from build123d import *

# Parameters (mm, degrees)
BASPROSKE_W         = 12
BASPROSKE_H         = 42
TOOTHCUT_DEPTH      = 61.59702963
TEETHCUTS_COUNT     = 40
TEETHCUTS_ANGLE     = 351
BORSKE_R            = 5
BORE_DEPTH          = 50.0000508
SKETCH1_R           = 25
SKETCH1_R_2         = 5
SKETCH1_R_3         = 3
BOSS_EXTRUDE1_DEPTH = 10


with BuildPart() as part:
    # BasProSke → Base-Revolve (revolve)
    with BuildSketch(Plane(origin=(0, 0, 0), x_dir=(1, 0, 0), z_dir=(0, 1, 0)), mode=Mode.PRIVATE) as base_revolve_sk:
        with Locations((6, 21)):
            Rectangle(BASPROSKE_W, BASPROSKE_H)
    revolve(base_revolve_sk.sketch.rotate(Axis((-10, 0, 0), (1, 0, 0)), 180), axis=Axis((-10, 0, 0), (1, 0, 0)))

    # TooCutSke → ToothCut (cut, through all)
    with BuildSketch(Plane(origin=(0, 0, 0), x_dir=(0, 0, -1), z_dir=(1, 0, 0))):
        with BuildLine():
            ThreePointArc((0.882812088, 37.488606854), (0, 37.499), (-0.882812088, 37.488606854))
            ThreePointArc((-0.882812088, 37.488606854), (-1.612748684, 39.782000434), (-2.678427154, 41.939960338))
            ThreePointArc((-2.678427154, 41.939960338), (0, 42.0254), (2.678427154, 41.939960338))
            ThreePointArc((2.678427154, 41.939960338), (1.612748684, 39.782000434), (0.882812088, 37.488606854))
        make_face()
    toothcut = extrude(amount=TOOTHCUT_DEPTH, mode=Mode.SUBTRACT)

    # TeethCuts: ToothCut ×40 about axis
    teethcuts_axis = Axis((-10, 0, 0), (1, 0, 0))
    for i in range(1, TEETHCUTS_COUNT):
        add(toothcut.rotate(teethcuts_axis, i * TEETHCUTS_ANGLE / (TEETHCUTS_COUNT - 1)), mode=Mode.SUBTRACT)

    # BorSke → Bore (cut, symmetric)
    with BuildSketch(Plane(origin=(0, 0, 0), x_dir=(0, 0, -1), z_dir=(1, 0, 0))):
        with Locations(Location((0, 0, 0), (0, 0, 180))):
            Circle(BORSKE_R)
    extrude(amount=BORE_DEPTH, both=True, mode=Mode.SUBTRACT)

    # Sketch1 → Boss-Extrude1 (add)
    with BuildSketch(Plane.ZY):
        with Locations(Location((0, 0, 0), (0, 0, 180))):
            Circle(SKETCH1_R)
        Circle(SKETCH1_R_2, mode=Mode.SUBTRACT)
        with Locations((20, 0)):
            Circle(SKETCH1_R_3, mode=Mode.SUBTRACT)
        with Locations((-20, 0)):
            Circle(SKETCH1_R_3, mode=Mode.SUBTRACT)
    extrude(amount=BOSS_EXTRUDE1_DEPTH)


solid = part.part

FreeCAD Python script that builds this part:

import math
import FreeCAD as App
import Part
import Sketcher
from FreeCAD import Vector

doc = App.newDocument("Part")
body = doc.addObject("PartDesign::Body", "Body")

# Sketch on XZ plane
sketch1 = doc.addObject("Sketcher::SketchObject", "Sketch")
body.addObject(sketch1)
sketch1.AttachmentSupport = (doc.XZ_Plane, [""])
sketch1.MapMode = "FlatFace"
sketch1.addGeometry([
    Part.LineSegment(Vector(0, -42, 0), Vector(0, 0, 0)),
    Part.LineSegment(Vector(0, 0, 0), Vector(12, 0, 0)),
    Part.LineSegment(Vector(12, 0, 0), Vector(12, -42, 0)),
    Part.LineSegment(Vector(12, -42, 0), Vector(0, -42, 0)),
], False)
sketch1.addConstraint([
    Sketcher.Constraint("Coincident", 0, 2, 1, 1),
    Sketcher.Constraint("Coincident", 1, 2, 2, 1),
    Sketcher.Constraint("Coincident", 2, 2, 3, 1),
    Sketcher.Constraint("Coincident", 3, 2, 0, 1),
    Sketcher.Constraint("Vertical", 0),
    Sketcher.Constraint("Horizontal", 1),
    Sketcher.Constraint("Vertical", 2),
    Sketcher.Constraint("Horizontal", 3),
    Sketcher.Constraint("Coincident", 0, 2, -1, 1),
    Sketcher.Constraint("DistanceX", 1, 1, 1, 2, 12.0),
    Sketcher.Constraint("DistanceY", 0, 1, 0, 2, 42.0),
])
revolution = doc.addObject("PartDesign::Revolution", "Revolution")
body.addObject(revolution)
revolution.Profile = sketch1
revolution.ReferenceAxis = (sketch1, ["H_Axis"])
revolution.Angle = 360

# Sketch on YZ plane
sketch2 = doc.addObject("Sketcher::SketchObject", "Sketch001")
body.addObject(sketch2)
sketch2.AttachmentSupport = (doc.YZ_Plane, [""])
sketch2.MapMode = "FlatFace"
sketch2.addGeometry([
    Part.ArcOfCircle(Part.Circle(Vector(0, 0, 0), Vector(0, 0, 1), 37.5), math.radians(-1.35), math.radians(1.35)),
    Part.ArcOfCircle(Part.Circle(Vector(33.8, -16.5, 0), Vector(0, 0, 1), 16), math.radians(59.4), math.radians(76.66)),
    Part.ArcOfCircle(Part.Circle(Vector(0, 0, 0), Vector(0, 0, 1), 42), math.radians(-3.65), math.radians(3.65)),
    Part.ArcOfCircle(Part.Circle(Vector(33.8, 16.5, 0), Vector(0, 0, 1), 16), math.radians(-76.66), math.radians(-59.4)),
], False)
sketch2.addConstraint([
    Sketcher.Constraint("Coincident", 0, 1, 1, 2),
    Sketcher.Constraint("Coincident", 1, 1, 2, 1),
    Sketcher.Constraint("Coincident", 2, 2, 3, 2),
    Sketcher.Constraint("Coincident", 3, 1, 0, 2),
    Sketcher.Constraint("Coincident", 0, 3, -1, 1),
    Sketcher.Constraint("Coincident", 2, 3, -1, 1),
    Sketcher.Constraint("Equal", 1, 3),
    Sketcher.Constraint("Symmetric", 1, 3, 3, 3, -1),
    Sketcher.Constraint("Radius", 1, 16.0),
    Sketcher.Constraint("Radius", 0, 37.499002),
    Sketcher.Constraint("Radius", 2, 42.0254),
    Sketcher.Constraint("DistanceY", 0, 1, 3, 3, 17.333798),
    Sketcher.Constraint("DistanceX", 1, 3, 1, 1, 8.143502),
])
pocket1 = doc.addObject("PartDesign::Pocket", "Pocket")
body.addObject(pocket1)
pocket1.Profile = sketch2
pocket1.Type = "ThroughAll"
pocket1.Reversed = True
doc.recompute()

polarpattern = doc.addObject("PartDesign::PolarPattern", "PolarPattern")
body.addObject(polarpattern)
polarpattern.Originals = [pocket1]
polarpattern.Axis = (doc.X_Axis, [""])
polarpattern.Angle = 360
polarpattern.Occurrences = 40
body.Tip = polarpattern

# Sketch on YZ plane
sketch3 = doc.addObject("Sketcher::SketchObject", "Sketch002")
body.addObject(sketch3)
sketch3.AttachmentSupport = (doc.YZ_Plane, [""])
sketch3.MapMode = "FlatFace"
sketch3.addGeometry(Part.Circle(Vector(0, 0, 0), Vector(0, 0, 1), 5), False)
sketch3.addConstraint([
    Sketcher.Constraint("Coincident", 0, 3, -1, 1),
    Sketcher.Constraint("Diameter", 0, 10.0),
])
pocket2 = doc.addObject("PartDesign::Pocket", "Pocket001")
body.addObject(pocket2)
pocket2.Profile = sketch3
pocket2.Length = 100.000102
pocket2.Midplane = True

# Sketch on YZ plane
sketch4 = doc.addObject("Sketcher::SketchObject", "Sketch003")
body.addObject(sketch4)
sketch4.AttachmentSupport = (doc.YZ_Plane, [""])
sketch4.MapMode = "FlatFace"
sketch4.addGeometry([
    Part.Circle(Vector(0, 0, 0), Vector(0, 0, 1), 25),
    Part.Circle(Vector(0, 20, 0), Vector(0, 0, 1), 3),
    Part.Circle(Vector(0, 0, 0), Vector(0, 0, 1), 5),
    Part.Circle(Vector(0, -20, 0), Vector(0, 0, 1), 3),
], False)
sketch4.addConstraint([
    Sketcher.Constraint("Coincident", 0, 3, -1, 1),
    Sketcher.Constraint("Coincident", 2, 3, -1, 1),
    Sketcher.Constraint("Equal", 1, 3),
    Sketcher.Constraint("Symmetric", 1, 3, 3, 3, -1, 1),
    Sketcher.Constraint("PointOnObject", 1, 3, -2),
    Sketcher.Constraint("Diameter", 0, 50.0),
    Sketcher.Constraint("Diameter", 1, 6.0),
    Sketcher.Constraint("Diameter", 2, 10.0),
    Sketcher.Constraint("DistanceY", -1, 1, 1, 3, 20.0),
])
pad1 = doc.addObject("PartDesign::Pad", "Pad")
body.addObject(pad1)
pad1.Profile = sketch4
pad1.Length = 10
pad1.Reversed = True

doc.recompute()
